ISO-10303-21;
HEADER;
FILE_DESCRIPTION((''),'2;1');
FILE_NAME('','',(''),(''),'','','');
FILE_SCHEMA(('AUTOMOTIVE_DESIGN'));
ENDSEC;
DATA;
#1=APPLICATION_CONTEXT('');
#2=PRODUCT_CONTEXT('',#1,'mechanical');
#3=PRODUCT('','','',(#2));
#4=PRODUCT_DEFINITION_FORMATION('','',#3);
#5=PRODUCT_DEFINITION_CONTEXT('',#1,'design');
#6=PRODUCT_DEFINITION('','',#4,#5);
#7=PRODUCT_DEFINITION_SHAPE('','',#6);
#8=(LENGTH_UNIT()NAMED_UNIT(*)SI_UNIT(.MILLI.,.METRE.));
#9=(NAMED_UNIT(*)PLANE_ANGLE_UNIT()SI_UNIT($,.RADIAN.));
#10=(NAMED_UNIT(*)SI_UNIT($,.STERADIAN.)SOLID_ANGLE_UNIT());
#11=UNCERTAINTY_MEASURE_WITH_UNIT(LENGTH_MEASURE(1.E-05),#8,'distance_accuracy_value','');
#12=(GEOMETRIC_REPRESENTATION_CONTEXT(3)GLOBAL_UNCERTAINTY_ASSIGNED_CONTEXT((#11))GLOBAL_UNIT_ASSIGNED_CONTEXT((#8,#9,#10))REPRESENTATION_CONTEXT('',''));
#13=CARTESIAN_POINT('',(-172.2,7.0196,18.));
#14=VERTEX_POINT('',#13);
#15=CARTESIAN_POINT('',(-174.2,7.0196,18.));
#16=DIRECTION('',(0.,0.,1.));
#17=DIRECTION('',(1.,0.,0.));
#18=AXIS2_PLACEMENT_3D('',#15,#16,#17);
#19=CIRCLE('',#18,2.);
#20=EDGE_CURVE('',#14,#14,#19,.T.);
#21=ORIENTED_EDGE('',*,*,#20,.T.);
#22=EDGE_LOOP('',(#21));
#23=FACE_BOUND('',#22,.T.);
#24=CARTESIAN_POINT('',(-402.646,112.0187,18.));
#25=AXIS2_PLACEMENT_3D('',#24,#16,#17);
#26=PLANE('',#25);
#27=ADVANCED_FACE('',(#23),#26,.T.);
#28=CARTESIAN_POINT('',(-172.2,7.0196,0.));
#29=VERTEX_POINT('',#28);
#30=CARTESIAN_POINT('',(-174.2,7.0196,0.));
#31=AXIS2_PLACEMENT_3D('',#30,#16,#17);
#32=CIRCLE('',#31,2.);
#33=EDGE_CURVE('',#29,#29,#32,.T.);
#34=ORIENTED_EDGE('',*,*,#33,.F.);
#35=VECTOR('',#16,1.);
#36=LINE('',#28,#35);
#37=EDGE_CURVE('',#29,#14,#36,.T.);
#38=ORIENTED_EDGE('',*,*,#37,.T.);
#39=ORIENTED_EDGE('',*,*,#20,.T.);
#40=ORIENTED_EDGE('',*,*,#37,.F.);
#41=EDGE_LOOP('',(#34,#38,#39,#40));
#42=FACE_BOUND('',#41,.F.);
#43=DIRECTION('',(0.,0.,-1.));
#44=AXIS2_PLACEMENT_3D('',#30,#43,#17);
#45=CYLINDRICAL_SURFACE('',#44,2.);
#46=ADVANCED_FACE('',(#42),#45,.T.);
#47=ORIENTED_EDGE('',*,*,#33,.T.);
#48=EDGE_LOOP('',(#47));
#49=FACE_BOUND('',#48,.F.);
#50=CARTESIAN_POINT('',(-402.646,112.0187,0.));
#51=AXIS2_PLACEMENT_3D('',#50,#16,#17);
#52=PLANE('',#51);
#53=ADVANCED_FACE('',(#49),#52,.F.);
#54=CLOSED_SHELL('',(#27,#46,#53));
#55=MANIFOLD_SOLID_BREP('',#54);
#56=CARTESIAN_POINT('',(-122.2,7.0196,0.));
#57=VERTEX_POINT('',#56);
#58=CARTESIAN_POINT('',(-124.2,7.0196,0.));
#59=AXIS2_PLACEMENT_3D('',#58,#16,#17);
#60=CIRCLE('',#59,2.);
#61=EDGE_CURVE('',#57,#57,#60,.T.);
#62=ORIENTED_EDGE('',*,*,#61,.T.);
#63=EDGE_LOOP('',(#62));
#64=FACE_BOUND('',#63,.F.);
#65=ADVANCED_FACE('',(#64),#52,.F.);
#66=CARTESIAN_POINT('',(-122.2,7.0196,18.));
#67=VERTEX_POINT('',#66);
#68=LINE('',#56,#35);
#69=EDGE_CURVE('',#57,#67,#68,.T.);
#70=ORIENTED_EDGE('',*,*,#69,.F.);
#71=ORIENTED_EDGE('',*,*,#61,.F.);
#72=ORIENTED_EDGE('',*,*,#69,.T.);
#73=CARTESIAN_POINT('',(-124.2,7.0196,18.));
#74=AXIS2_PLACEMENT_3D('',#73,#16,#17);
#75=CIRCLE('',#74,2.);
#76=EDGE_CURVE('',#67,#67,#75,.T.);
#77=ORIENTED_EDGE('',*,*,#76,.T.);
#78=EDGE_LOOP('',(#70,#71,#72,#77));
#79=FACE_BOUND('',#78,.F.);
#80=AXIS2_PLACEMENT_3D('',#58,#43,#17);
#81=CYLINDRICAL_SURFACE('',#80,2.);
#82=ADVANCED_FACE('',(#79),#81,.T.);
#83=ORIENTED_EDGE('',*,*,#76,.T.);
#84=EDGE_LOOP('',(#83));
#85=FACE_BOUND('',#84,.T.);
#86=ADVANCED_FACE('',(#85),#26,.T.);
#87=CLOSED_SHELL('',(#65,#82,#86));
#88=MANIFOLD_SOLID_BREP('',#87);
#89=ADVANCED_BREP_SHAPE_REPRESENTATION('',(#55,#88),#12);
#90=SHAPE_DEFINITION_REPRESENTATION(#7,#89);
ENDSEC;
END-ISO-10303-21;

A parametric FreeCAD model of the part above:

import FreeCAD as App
import Part
import Sketcher

doc = App.newDocument("Part")
body = doc.addObject("PartDesign::Body", "Body")
body.AllowCompound = True

sketch1 = body.newObject("Sketcher::SketchObject", "Sketch")
sketch1.AttachmentSupport = (doc.getObject("XY_Plane"), [""])
sketch1.MapMode = "FlatFace"
sketch1.addGeometry([
    Part.Circle(App.Vector(-174.2, 7.0196, 0), App.Vector(0, 0, 1), 2),
    Part.Circle(App.Vector(-124.2, 7.0196, 0), App.Vector(0, 0, 1), 2),
], False)
sketch1.addConstraint([
    Sketcher.Constraint("Equal", 0, 1),
    Sketcher.Constraint("Horizontal", 0, 3, 1, 3),
    Sketcher.Constraint("Diameter", 0, 4.0),
    Sketcher.Constraint("DistanceX", 0, 3, 1, 3, 50.0),
    Sketcher.Constraint("DistanceX", 1, 3, -1, 1, 124.2),
    Sketcher.Constraint("DistanceY", -1, 1, 0, 3, 7.0196),
])
pad1 = body.newObject("PartDesign::Pad", "Pad")
pad1.Profile = sketch1
pad1.Length = 18

doc.recompute()
